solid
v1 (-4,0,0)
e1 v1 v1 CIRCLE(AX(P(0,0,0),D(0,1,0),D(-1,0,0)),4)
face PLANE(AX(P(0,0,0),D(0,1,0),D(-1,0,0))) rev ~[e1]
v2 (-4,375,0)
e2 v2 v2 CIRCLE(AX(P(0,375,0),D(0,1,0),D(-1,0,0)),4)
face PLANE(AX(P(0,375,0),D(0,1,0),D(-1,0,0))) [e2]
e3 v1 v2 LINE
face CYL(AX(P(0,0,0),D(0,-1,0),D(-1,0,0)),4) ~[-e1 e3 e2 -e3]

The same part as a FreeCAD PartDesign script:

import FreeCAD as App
import Part
import Sketcher
from FreeCAD import Vector

doc = App.newDocument("Part")
body = doc.addObject("PartDesign::Body", "Body")

sketch1 = doc.addObject("Sketcher::SketchObject", "Sketch")
body.addObject(sketch1)
sketch1.AttachmentSupport = (doc.XZ_Plane, [""])
sketch1.MapMode = "FlatFace"
sketch1.addGeometry(Part.Circle(Vector(0, 0, 0), Vector(0, 0, 1), 4), False)
sketch1.addConstraint(Sketcher.Constraint("Coincident", 0, 3, -1, 1))
sketch1.addConstraint(Sketcher.Constraint("Diameter", 0, 8.0))
pad1 = doc.addObject("PartDesign::Pad", "Pad")
body.addObject(pad1)
pad1.Profile = sketch1
pad1.Length = 375
pad1.Reversed = True

doc.recompute()
